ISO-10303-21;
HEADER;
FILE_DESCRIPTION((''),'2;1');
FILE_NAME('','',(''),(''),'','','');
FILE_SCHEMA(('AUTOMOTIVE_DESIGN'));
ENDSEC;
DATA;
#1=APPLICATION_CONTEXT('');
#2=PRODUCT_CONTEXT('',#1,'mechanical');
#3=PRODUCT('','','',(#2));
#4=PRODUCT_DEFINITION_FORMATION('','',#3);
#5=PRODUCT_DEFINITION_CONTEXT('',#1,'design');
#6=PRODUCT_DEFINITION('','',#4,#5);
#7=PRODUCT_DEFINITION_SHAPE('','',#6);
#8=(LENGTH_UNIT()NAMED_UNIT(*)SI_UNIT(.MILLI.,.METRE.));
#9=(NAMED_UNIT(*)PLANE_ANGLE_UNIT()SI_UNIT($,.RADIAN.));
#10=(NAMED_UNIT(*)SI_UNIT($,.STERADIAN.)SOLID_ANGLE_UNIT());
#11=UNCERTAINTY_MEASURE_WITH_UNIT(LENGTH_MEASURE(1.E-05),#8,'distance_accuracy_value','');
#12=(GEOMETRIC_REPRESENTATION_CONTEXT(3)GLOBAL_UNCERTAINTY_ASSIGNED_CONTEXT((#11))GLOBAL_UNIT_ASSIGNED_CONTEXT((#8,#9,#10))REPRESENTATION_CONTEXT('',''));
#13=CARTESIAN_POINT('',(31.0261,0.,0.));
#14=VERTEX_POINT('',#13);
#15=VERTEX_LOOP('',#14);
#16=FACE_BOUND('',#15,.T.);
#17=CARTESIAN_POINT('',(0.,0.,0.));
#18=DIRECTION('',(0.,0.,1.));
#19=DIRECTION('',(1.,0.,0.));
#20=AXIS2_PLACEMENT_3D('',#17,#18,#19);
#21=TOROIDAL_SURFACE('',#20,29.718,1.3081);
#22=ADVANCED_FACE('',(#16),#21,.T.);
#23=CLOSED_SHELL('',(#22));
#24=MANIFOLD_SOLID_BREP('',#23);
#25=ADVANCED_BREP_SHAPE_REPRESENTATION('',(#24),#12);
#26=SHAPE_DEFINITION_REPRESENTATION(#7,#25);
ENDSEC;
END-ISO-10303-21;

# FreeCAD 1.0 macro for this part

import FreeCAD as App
import Part
import Sketcher
from FreeCAD import Vector
Q = App.Units.Quantity

doc = App.newDocument("Part")
body = doc.addObject("PartDesign::Body", "Body")

sketch1 = body.newObject("Sketcher::SketchObject", "Sketch")
sketch1.AttachmentSupport = (doc.getObject("YZ_Plane"), [""])
sketch1.MapMode = "FlatFace"
sketch1.addGeometry(Part.Circle(Vector(-29.718, 0, 0), Vector(0, 0, 1), 1.3081), False)
sketch1.addConstraint(Sketcher.Constraint("PointOnObject", 0, 3, -1))
sketch1.addConstraint(Sketcher.Constraint("Diameter", 0, Q("0.103 in")))
sketch1.addConstraint(Sketcher.Constraint("DistanceX", 0, 3, -1, 1, Q("1.17 in")))
revolution = body.newObject("PartDesign::Revolution", "Revolution")
revolution.Profile = sketch1
revolution.ReferenceAxis = (sketch1, ["V_Axis"])
revolution.Angle = 360

doc.recompute()
